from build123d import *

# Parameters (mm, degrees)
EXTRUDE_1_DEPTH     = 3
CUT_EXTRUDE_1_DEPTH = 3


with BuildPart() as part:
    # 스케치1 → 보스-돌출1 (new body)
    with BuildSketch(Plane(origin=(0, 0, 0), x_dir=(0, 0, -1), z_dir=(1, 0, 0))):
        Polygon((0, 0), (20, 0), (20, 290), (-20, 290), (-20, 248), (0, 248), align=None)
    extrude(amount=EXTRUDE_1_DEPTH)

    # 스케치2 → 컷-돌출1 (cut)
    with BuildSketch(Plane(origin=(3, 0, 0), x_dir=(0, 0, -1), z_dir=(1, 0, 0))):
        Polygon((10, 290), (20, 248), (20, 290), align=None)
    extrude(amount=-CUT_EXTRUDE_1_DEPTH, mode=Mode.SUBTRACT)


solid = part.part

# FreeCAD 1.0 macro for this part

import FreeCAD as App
import Part
import Sketcher

V = App.Vector

doc = App.newDocument("Part")
body = doc.addObject("PartDesign::Body", "Body")

sketch1 = body.newObject("Sketcher::SketchObject", "Sketch")
sketch1.AttachmentSupport = (doc.getObject("YZ_Plane"), [""])
sketch1.MapMode = "FlatFace"
sketch1.addGeometry([
    Part.LineSegment(V(0, 0, 0), V(0, -20, 0)),
    Part.LineSegment(V(0, -20, 0), V(290, -20, 0)),
    Part.LineSegment(V(290, -20, 0), V(290, 20, 0)),
    Part.LineSegment(V(290, 20, 0), V(248, 20, 0)),
    Part.LineSegment(V(248, 20, 0), V(248, 0, 0)),
    Part.LineSegment(V(248, 0, 0), V(0, 0, 0)),
], False)
sketch1.addConstraint([
    Sketcher.Constraint("Coincident", 0, 2, 1, 1),
    Sketcher.Constraint("Coincident", 1, 2, 2, 1),
    Sketcher.Constraint("Coincident", 2, 2, 3, 1),
    Sketcher.Constraint("Coincident", 3, 2, 4, 1),
    Sketcher.Constraint("Coincident", 4, 2, 5, 1),
    Sketcher.Constraint("Coincident", 5, 2, 0, 1),
    Sketcher.Constraint("Vertical", 0),
    Sketcher.Constraint("Horizontal", 1),
    Sketcher.Constraint("Vertical", 2),
    Sketcher.Constraint("Horizontal", 3),
    Sketcher.Constraint("Vertical", 4),
    Sketcher.Constraint("Horizontal", 5),
    Sketcher.Constraint("Coincident", 5, 2, -1, 1),
    Sketcher.Constraint("Equal", 0, 4),
    Sketcher.Constraint("DistanceX", 1, 1, 1, 2, 290.0),
    Sketcher.Constraint("DistanceX", 3, 2, 3, 1, 42.0),
    Sketcher.Constraint("DistanceY", 0, 2, 0, 1, 20.0),
])
pad1 = body.newObject("PartDesign::Pad", "Pad")
pad1.Profile = sketch1
pad1.Length = 3

sketch2 = body.newObject("Sketcher::SketchObject", "Sketch001")
sketch2.AttachmentSupport = (doc.getObject("YZ_Plane"), [""])
sketch2.MapMode = "FlatFace"
sketch2.AttachmentOffset = App.Placement(V(0, 0, 3), App.Rotation())
sketch2.addGeometry([
    Part.LineSegment(V(290, -10, 0), V(248, -20, 0)),
    Part.LineSegment(V(248, -20, 0), V(290, -20, 0)),
    Part.LineSegment(V(290, -20, 0), V(290, -10, 0)),
], False)
sketch2.addConstraint([
    Sketcher.Constraint("Coincident", 0, 2, 1, 1),
    Sketcher.Constraint("Coincident", 1, 2, 2, 1),
    Sketcher.Constraint("Coincident", 2, 2, 0, 1),
    Sketcher.Constraint("Horizontal", 1),
    Sketcher.Constraint("Vertical", 2),
    Sketcher.Constraint("DistanceX", 1, 1, 1, 2, 42.0),
    Sketcher.Constraint("DistanceY", 2, 1, 2, 2, 10.0),
    Sketcher.Constraint("DistanceX", -1, 1, 0, 2, 248.0),
    Sketcher.Constraint("DistanceY", 0, 2, -1, 1, 20.0),
])
pocket1 = body.newObject("PartDesign::Pocket", "Pocket")
pocket1.Profile = sketch2
pocket1.Length = 3

doc.recompute()
